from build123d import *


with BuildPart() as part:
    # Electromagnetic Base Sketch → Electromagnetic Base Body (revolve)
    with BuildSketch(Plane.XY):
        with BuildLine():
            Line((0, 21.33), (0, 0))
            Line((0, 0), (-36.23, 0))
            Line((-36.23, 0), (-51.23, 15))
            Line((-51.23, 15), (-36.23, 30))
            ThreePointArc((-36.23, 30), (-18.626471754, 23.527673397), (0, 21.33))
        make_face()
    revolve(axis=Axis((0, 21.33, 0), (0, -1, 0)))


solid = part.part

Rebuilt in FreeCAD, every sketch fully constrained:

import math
import FreeCAD as App
import Part
import Sketcher

V = App.Vector

doc = App.newDocument("Part")
body = doc.addObject("PartDesign::Body", "Body")

sketch1 = body.newObject("Sketcher::SketchObject", "Sketch")
sketch1.AttachmentSupport = (doc.getObject("XY_Plane"), [""])
sketch1.MapMode = "FlatFace"
sketch1.addGeometry(Part.LineSegment(V(0, 0, 0), V(0, 21.33, 0)), False)
sketch1.addGeometry(Part.ArcOfCircle(Part.Circle(V(0, 101.363552, 0), V(0, 0, 1), 80.033552), math.radians(-116.916091), math.radians(-90)), False)
sketch1.addGeometry(Part.LineSegment(V(-36.23, 30, 0), V(-51.23, 15, 0)), False)
sketch1.addGeometry(Part.LineSegment(V(-51.23, 15, 0), V(-36.23, 0, 0)), False)
sketch1.addGeometry(Part.LineSegment(V(-36.23, 0, 0), V(0, 0, 0)), False)
sketch1.addConstraint(Sketcher.Constraint("Coincident", 0, 2, 1, 2))
sketch1.addConstraint(Sketcher.Constraint("Coincident", 1, 1, 2, 1))
sketch1.addConstraint(Sketcher.Constraint("Coincident", 2, 2, 3, 1))
sketch1.addConstraint(Sketcher.Constraint("Coincident", 3, 2, 4, 1))
sketch1.addConstraint(Sketcher.Constraint("Coincident", 4, 2, 0, 1))
sketch1.addConstraint(Sketcher.Constraint("Vertical", 0))
sketch1.addConstraint(Sketcher.Constraint("Horizontal", 4))
sketch1.addConstraint(Sketcher.Constraint("Coincident", 4, 2, -1, 1))
sketch1.addConstraint(Sketcher.Constraint("PointOnObject", 1, 3, -2))
sketch1.addConstraint(Sketcher.Constraint("Perpendicular", 2, 3))
sketch1.addConstraint(Sketcher.Constraint("Vertical", 1, 1, 3, 2))
sketch1.addConstraint(Sketcher.Constraint("Equal", 2, 3))
sketch1.addConstraint(Sketcher.Constraint("DistanceY", -1, 1, 1, 1, 30.0))
sketch1.addConstraint(Sketcher.Constraint("DistanceX", 4, 1, 4, 2, 36.23))
sketch1.addConstraint(Sketcher.Constraint("DistanceY", 0, 1, 0, 2, 21.33))
revolution = body.newObject("PartDesign::Revolution", "Revolution")
revolution.Profile = sketch1
revolution.ReferenceAxis = (sketch1, ["V_Axis"])
revolution.Angle = 360

doc.recompute()
